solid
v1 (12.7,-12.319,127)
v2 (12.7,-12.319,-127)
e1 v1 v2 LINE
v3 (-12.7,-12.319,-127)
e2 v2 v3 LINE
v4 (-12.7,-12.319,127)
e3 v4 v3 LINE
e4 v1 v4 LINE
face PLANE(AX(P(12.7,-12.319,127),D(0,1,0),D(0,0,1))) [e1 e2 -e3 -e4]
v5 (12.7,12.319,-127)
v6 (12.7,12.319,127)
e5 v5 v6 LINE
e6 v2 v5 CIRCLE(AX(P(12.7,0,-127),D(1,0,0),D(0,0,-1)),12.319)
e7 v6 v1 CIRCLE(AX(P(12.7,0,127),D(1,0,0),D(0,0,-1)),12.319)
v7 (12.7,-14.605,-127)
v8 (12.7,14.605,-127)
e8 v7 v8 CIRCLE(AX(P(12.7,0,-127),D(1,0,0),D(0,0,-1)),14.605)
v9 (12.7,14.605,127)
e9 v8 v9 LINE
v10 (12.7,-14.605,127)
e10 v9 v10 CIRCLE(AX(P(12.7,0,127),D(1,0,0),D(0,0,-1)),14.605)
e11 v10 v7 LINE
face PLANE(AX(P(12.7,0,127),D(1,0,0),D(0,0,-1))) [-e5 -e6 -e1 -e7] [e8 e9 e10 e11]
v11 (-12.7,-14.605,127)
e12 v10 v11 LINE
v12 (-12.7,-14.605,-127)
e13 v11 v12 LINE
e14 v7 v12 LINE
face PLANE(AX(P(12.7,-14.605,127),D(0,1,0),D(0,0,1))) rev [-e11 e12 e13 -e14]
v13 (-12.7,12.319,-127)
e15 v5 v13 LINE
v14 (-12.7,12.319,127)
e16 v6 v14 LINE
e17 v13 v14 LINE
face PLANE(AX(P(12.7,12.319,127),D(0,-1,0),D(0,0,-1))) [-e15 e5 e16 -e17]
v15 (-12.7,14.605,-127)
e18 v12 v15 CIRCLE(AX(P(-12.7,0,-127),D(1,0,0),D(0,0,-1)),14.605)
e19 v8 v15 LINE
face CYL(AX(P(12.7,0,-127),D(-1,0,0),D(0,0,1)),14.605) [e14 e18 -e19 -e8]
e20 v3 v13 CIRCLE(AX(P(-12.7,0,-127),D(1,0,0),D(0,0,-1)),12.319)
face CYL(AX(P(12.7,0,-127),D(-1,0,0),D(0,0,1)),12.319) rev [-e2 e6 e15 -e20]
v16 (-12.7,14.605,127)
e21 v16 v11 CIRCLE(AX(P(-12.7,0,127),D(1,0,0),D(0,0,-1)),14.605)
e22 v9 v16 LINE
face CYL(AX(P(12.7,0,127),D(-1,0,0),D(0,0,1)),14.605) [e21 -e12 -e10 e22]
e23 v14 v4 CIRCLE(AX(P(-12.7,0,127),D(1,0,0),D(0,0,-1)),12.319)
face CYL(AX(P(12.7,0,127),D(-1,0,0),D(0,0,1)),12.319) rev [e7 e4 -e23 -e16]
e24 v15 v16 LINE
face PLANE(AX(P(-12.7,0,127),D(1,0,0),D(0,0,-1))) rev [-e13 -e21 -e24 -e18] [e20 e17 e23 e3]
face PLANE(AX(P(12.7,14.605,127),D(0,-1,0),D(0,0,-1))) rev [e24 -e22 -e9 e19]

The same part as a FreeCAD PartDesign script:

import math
import FreeCAD as App
import Part
import Sketcher
Q = App.Units.Quantity

doc = App.newDocument("Part")
body = doc.addObject("PartDesign::Body", "Body")

# Sketch on YZ plane
sketch1 = body.newObject("Sketcher::SketchObject", "Sketch")
sketch1.AttachmentSupport = (doc.getObject("YZ_Plane"), [""])
sketch1.MapMode = "FlatFace"
sketch1.addGeometry(Part.LineSegment(App.Vector(15, -127, 0), App.Vector(15, 127, 0)), False)
sketch1.addGeometry(Part.ArcOfCircle(Part.Circle(App.Vector(0, 127, 0), App.Vector(0, 0, 1), 15), math.radians(0), math.radians(180)), False)
sketch1.addGeometry(Part.LineSegment(App.Vector(-15, 127, 0), App.Vector(-15, -127, 0)), False)
sketch1.addGeometry(Part.ArcOfCircle(Part.Circle(App.Vector(0, -127, 0), App.Vector(0, 0, 1), 15), math.radians(180), math.radians(360)), False)
sketch1.addGeometry(Part.LineSegment(App.Vector(12, 127, 0), App.Vector(12, -127, 0)), False)
sketch1.addGeometry(Part.ArcOfCircle(Part.Circle(App.Vector(0, -127, 0), App.Vector(0, 0, 1), 12), math.radians(180), math.radians(360)), False)
sketch1.addGeometry(Part.LineSegment(App.Vector(-12, -127, 0), App.Vector(-12, 127, 0)), False)
sketch1.addGeometry(Part.ArcOfCircle(Part.Circle(App.Vector(0, 127, 0), App.Vector(0, 0, 1), 12), math.radians(0), math.radians(180)), False)
sketch1.addConstraint(Sketcher.Constraint("Tangent", 0, 2, 1, 1))
sketch1.addConstraint(Sketcher.Constraint("Tangent", 1, 2, 2, 1))
sketch1.addConstraint(Sketcher.Constraint("Tangent", 2, 2, 3, 1))
sketch1.addConstraint(Sketcher.Constraint("Tangent", 3, 2, 0, 1))
sketch1.addConstraint(Sketcher.Constraint("Tangent", 4, 2, 5, 2))
sketch1.addConstraint(Sketcher.Constraint("Tangent", 5, 1, 6, 1))
sketch1.addConstraint(Sketcher.Constraint("Tangent", 6, 2, 7, 2))
sketch1.addConstraint(Sketcher.Constraint("Tangent", 7, 1, 4, 1))
sketch1.addConstraint(Sketcher.Constraint("Vertical", 0))
sketch1.addConstraint(Sketcher.Constraint("Vertical", 2))
sketch1.addConstraint(Sketcher.Constraint("Vertical", 4))
sketch1.addConstraint(Sketcher.Constraint("Vertical", 6))
sketch1.addConstraint(Sketcher.Constraint("Coincident", 5, 3, 3, 3))
sketch1.addConstraint(Sketcher.Constraint("Symmetric", 1, 3, 3, 3, -1, 1))
sketch1.addConstraint(Sketcher.Constraint("Horizontal", 7, 3, 0, 2))
sketch1.addConstraint(Sketcher.Constraint("DistanceY", 0, 1, 0, 2, Q("10 in")))
sketch1.addConstraint(Sketcher.Constraint("Radius", 1, Q("0.575 in")))
sketch1.addConstraint(Sketcher.Constraint("Radius", 5, Q("0.485 in")))
pad1 = body.newObject("PartDesign::Pad", "Pad")
pad1.Profile = sketch1
pad1.Length = Q("1 in")
pad1.Midplane = True

doc.recompute()
